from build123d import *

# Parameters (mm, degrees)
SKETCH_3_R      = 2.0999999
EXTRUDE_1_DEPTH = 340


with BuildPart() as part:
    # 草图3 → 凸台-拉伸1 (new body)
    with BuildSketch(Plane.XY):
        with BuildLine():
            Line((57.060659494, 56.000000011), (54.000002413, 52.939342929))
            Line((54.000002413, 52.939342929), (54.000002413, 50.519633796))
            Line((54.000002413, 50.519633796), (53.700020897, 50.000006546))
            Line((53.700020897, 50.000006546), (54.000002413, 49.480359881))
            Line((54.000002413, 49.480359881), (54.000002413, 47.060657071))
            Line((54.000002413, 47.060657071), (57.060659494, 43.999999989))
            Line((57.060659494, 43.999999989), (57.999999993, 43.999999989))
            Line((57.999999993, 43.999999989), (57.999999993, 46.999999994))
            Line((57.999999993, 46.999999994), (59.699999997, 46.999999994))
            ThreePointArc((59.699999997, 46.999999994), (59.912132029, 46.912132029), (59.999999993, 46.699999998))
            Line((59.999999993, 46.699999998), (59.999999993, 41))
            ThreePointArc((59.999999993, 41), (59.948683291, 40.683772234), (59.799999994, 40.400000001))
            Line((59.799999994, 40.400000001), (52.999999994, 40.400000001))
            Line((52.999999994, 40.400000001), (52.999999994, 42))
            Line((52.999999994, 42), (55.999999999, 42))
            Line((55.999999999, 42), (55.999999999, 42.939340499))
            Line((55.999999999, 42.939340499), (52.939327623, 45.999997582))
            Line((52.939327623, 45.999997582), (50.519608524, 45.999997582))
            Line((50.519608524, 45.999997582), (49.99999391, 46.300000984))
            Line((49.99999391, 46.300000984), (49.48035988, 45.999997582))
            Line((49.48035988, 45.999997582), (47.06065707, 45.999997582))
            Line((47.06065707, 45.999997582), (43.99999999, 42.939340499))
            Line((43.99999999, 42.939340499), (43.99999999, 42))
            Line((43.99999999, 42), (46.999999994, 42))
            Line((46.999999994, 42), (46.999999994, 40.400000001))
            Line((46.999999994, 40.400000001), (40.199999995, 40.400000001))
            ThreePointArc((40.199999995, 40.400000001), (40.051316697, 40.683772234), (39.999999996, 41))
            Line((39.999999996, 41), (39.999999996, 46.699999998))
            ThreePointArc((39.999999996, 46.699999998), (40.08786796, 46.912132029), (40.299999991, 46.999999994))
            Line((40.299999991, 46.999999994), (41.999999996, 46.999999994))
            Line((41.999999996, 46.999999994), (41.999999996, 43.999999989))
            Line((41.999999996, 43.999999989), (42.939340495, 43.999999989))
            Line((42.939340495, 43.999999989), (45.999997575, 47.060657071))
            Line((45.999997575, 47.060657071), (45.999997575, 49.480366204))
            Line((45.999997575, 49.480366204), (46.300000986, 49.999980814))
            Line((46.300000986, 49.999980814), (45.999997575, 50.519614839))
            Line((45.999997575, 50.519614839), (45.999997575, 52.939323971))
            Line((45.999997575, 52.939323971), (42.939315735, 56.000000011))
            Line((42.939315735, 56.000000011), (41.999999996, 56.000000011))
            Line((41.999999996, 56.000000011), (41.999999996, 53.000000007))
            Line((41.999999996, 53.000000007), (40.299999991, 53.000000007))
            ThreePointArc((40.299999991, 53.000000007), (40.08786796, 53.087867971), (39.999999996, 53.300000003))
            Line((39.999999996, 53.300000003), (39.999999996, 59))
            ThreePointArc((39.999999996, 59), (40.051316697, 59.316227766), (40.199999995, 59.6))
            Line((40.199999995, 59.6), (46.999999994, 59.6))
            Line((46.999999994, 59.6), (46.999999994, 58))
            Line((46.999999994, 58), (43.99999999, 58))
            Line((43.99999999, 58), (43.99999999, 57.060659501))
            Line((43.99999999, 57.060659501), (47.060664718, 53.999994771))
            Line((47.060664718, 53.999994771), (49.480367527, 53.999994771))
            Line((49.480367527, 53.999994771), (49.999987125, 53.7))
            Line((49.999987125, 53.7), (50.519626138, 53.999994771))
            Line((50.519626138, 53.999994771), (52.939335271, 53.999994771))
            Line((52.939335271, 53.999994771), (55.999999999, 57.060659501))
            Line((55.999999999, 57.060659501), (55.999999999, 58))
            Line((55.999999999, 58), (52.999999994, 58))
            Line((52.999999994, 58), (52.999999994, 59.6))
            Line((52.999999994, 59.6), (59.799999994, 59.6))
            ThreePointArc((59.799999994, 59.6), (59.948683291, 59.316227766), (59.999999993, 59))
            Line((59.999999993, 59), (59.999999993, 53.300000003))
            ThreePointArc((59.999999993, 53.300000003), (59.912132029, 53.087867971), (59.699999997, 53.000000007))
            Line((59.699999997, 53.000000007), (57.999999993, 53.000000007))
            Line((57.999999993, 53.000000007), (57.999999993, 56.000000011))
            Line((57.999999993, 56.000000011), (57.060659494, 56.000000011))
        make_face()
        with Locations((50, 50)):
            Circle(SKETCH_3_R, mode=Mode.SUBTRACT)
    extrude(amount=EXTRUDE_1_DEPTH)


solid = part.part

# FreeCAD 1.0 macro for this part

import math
import FreeCAD as App
import Part
import Sketcher
from FreeCAD import Vector

doc = App.newDocument("Part")
body = doc.addObject("PartDesign::Body", "Body")

# Sketch on XY plane
sketch1 = body.newObject("Sketcher::SketchObject", "Sketch")
sketch1.AttachmentSupport = (doc.getObject("XY_Plane"), [""])
sketch1.MapMode = "FlatFace"
sketch1.addGeometry(Part.LineSegment(Vector(54.000002, 52.939343, 0), Vector(57.060659, 56, 0)), False)
sketch1.addGeometry(Part.LineSegment(Vector(57.060659, 56, 0), Vector(58, 56, 0)), False)
sketch1.addGeometry(Part.LineSegment(Vector(58, 56, 0), Vector(58, 53, 0)), False)
sketch1.addGeometry(Part.LineSegment(Vector(58, 53, 0), Vector(59.7, 53, 0)), False)
sketch1.addGeometry(Part.ArcOfCircle(Part.Circle(Vector(59.7, 53.3, 0), Vector(0, 0, 1), 0.3), math.radians(-90), math.radians(0)), False)
sketch1.addGeometry(Part.LineSegment(Vector(60, 53.3, 0), Vector(60, 59, 0)), False)
sketch1.addGeometry(Part.ArcOfCircle(Part.Circle(Vector(59, 59, 0), Vector(0, 0, 1), 1), math.radians(0), math.radians(36.869897)), False)
sketch1.addGeometry(Part.LineSegment(Vector(59.8, 59.6, 0), Vector(53, 59.6, 0)), False)
sketch1.addGeometry(Part.LineSegment(Vector(53, 59.6, 0), Vector(53, 58, 0)), False)
sketch1.addGeometry(Part.LineSegment(Vector(53, 58, 0), Vector(56, 58, 0)), False)
sketch1.addGeometry(Part.LineSegment(Vector(56, 58, 0), Vector(56, 57.06066, 0)), False)
sketch1.addGeometry(Part.LineSegment(Vector(56, 57.06066, 0), Vector(52.939335, 53.999995, 0)), False)
sketch1.addGeometry(Part.LineSegment(Vector(52.939335, 53.999995, 0), Vector(50.519626, 53.999995, 0)), False)
sketch1.addGeometry(Part.LineSegment(Vector(50.519626, 53.999995, 0), Vector(49.999987, 53.7, 0)), False)
sketch1.addGeometry(Part.LineSegment(Vector(49.999987, 53.7, 0), Vector(49.480368, 53.999995, 0)), False)
sketch1.addGeometry(Part.LineSegment(Vector(49.480368, 53.999995, 0), Vector(47.060665, 53.999995, 0)), False)
sketch1.addGeometry(Part.LineSegment(Vector(47.060665, 53.999995, 0), Vector(44, 57.06066, 0)), False)
sketch1.addGeometry(Part.LineSegment(Vector(44, 57.06066, 0), Vector(44, 58, 0)), False)
sketch1.addGeometry(Part.LineSegment(Vector(44, 58, 0), Vector(47, 58, 0)), False)
sketch1.addGeometry(Part.LineSegment(Vector(47, 58, 0), Vector(47, 59.6, 0)), False)
sketch1.addGeometry(Part.LineSegment(Vector(47, 59.6, 0), Vector(40.2, 59.6, 0)), False)
sketch1.addGeometry(Part.ArcOfCircle(Part.Circle(Vector(41, 59, 0), Vector(0, 0, 1), 1), math.radians(143.130102), math.radians(180)), False)
sketch1.addGeometry(Part.LineSegment(Vector(40, 59, 0), Vector(40, 53.3, 0)), False)
sketch1.addGeometry(Part.ArcOfCircle(Part.Circle(Vector(40.3, 53.3, 0), Vector(0, 0, 1), 0.3), math.radians(180), math.radians(270)), False)
sketch1.addGeometry(Part.LineSegment(Vector(40.3, 53, 0), Vector(42, 53, 0)), False)
sketch1.addGeometry(Part.LineSegment(Vector(42, 53, 0), Vector(42, 56, 0)), False)
sketch1.addGeometry(Part.LineSegment(Vector(42, 56, 0), Vector(42.939316, 56, 0)), False)
sketch1.addGeometry(Part.LineSegment(Vector(42.939316, 56, 0), Vector(45.999998, 52.939324, 0)), False)
sketch1.addGeometry(Part.LineSegment(Vector(45.999998, 52.939324, 0), Vector(45.999998, 50.519615, 0)), False)
sketch1.addGeometry(Part.LineSegment(Vector(45.999998, 50.519615, 0), Vector(46.300001, 49.999981, 0)), False)
sketch1.addGeometry(Part.LineSegment(Vector(46.300001, 49.999981, 0), Vector(45.999998, 49.480366, 0)), False)
sketch1.addGeometry(Part.LineSegment(Vector(45.999998, 49.480366, 0), Vector(45.999998, 47.060657, 0)), False)
sketch1.addGeometry(Part.LineSegment(Vector(45.999998, 47.060657, 0), Vector(42.93934, 44, 0)), False)
sketch1.addGeometry(Part.LineSegment(Vector(42.93934, 44, 0), Vector(42, 44, 0)), False)
sketch1.addGeometry(Part.LineSegment(Vector(42, 44, 0), Vector(42, 47, 0)), False)
sketch1.addGeometry(Part.LineSegment(Vector(42, 47, 0), Vector(40.3, 47, 0)), False)
sketch1.addGeometry(Part.ArcOfCircle(Part.Circle(Vector(40.3, 46.7, 0), Vector(0, 0, 1), 0.3), math.radians(90), math.radians(180)), False)
sketch1.addGeometry(Part.LineSegment(Vector(40, 46.7, 0), Vector(40, 41, 0)), False)
sketch1.addGeometry(Part.ArcOfCircle(Part.Circle(Vector(41, 41, 0), Vector(0, 0, 1), 1), math.radians(180), math.radians(216.869898)), False)
sketch1.addGeometry(Part.LineSegment(Vector(40.2, 40.4, 0), Vector(47, 40.4, 0)), False)
sketch1.addGeometry(Part.LineSegment(Vector(47, 40.4, 0), Vector(47, 42, 0)), False)
sketch1.addGeometry(Part.LineSegment(Vector(47, 42, 0), Vector(44, 42, 0)), False)
sketch1.addGeometry(Part.LineSegment(Vector(44, 42, 0), Vector(44, 42.93934, 0)), False)
sketch1.addGeometry(Part.LineSegment(Vector(44, 42.93934, 0), Vector(47.060657, 45.999998, 0)), False)
sketch1.addGeometry(Part.LineSegment(Vector(47.060657, 45.999998, 0), Vector(49.48036, 45.999998, 0)), False)
sketch1.addGeometry(Part.LineSegment(Vector(49.48036, 45.999998, 0), Vector(49.999994, 46.300001, 0)), False)
sketch1.addGeometry(Part.LineSegment(Vector(49.999994, 46.300001, 0), Vector(50.519609, 45.999998, 0)), False)
sketch1.addGeometry(Part.LineSegment(Vector(50.519609, 45.999998, 0), Vector(52.939328, 45.999998, 0)), False)
sketch1.addGeometry(Part.LineSegment(Vector(52.939328, 45.999998, 0), Vector(56, 42.93934, 0)), False)
sketch1.addGeometry(Part.LineSegment(Vector(56, 42.93934, 0), Vector(56, 42, 0)), False)
sketch1.addGeometry(Part.LineSegment(Vector(56, 42, 0), Vector(53, 42, 0)), False)
sketch1.addGeometry(Part.LineSegment(Vector(53, 42, 0), Vector(53, 40.4, 0)), False)
sketch1.addGeometry(Part.LineSegment(Vector(53, 40.4, 0), Vector(59.8, 40.4, 0)), False)
sketch1.addGeometry(Part.ArcOfCircle(Part.Circle(Vector(59, 41, 0), Vector(0, 0, 1), 1), math.radians(-36.869898), math.radians(0)), False)
sketch1.addGeometry(Part.LineSegment(Vector(60, 41, 0), Vector(60, 46.7, 0)), False)
sketch1.addGeometry(Part.ArcOfCircle(Part.Circle(Vector(59.7, 46.7, 0), Vector(0, 0, 1), 0.3), math.radians(0), math.radians(90)), False)
sketch1.addGeometry(Part.LineSegment(Vector(59.7, 47, 0), Vector(58, 47, 0)), False)
sketch1.addGeometry(Part.LineSegment(Vector(58, 47, 0), Vector(58, 44, 0)), False)
sketch1.addGeometry(Part.LineSegment(Vector(58, 44, 0), Vector(57.060659, 44, 0)), False)
sketch1.addGeometry(Part.LineSegment(Vector(57.060659, 44, 0), Vector(54.000002, 47.060657, 0)), False)
sketch1.addGeometry(Part.LineSegment(Vector(54.000002, 47.060657, 0), Vector(54.000002, 49.48036, 0)), False)
sketch1.addGeometry(Part.LineSegment(Vector(54.000002, 49.48036, 0), Vector(53.700021, 50.000007, 0)), False)
sketch1.addGeometry(Part.LineSegment(Vector(53.700021, 50.000007, 0), Vector(54.000002, 50.519634, 0)), False)
sketch1.addGeometry(Part.LineSegment(Vector(54.000002, 50.519634, 0), Vector(54.000002, 52.939343, 0)), False)
sketch1.addGeometry(Part.Circle(Vector(50, 50, 0), Vector(0, 0, 1), 2.1), False)
sketch1.addConstraint(Sketcher.Constraint("Coincident", 0, 2, 1, 1))
sketch1.addConstraint(Sketcher.Constraint("Coincident", 1, 2, 2, 1))
sketch1.addConstraint(Sketcher.Constraint("Coincident", 2, 2, 3, 1))
sketch1.addConstraint(Sketcher.Constraint("Coincident", 3, 2, 4, 1))
sketch1.addConstraint(Sketcher.Constraint("Coincident", 4, 2, 5, 1))
sketch1.addConstraint(Sketcher.Constraint("Coincident", 5, 2, 6, 1))
sketch1.addConstraint(Sketcher.Constraint("Coincident", 6, 2, 7, 1))
sketch1.addConstraint(Sketcher.Constraint("Coincident", 7, 2, 8, 1))
sketch1.addConstraint(Sketcher.Constraint("Coincident", 8, 2, 9, 1))
sketch1.addConstraint(Sketcher.Constraint("Coincident", 9, 2, 10, 1))
sketch1.addConstraint(Sketcher.Constraint("Coincident", 10, 2, 11, 1))
sketch1.addConstraint(Sketcher.Constraint("Coincident", 11, 2, 12, 1))
sketch1.addConstraint(Sketcher.Constraint("Coincident", 12, 2, 13, 1))
sketch1.addConstraint(Sketcher.Constraint("Coincident", 13, 2, 14, 1))
sketch1.addConstraint(Sketcher.Constraint("Coincident", 14, 2, 15, 1))
sketch1.addConstraint(Sketcher.Constraint("Coincident", 15, 2, 16, 1))
sketch1.addConstraint(Sketcher.Constraint("Coincident", 16, 2, 17, 1))
sketch1.addConstraint(Sketcher.Constraint("Coincident", 17, 2, 18, 1))
sketch1.addConstraint(Sketcher.Constraint("Coincident", 18, 2, 19, 1))
sketch1.addConstraint(Sketcher.Constraint("Coincident", 19, 2, 20, 1))
sketch1.addConstraint(Sketcher.Constraint("Coincident", 20, 2, 21, 1))
sketch1.addConstraint(Sketcher.Constraint("Coincident", 21, 2, 22, 1))
sketch1.addConstraint(Sketcher.Constraint("Coincident", 22, 2, 23, 1))
sketch1.addConstraint(Sketcher.Constraint("Coincident", 23, 2, 24, 1))
sketch1.addConstraint(Sketcher.Constraint("Coincident", 24, 2, 25, 1))
sketch1.addConstraint(Sketcher.Constraint("Coincident", 25, 2, 26, 1))
sketch1.addConstraint(Sketcher.Constraint("Coincident", 26, 2, 27, 1))
sketch1.addConstraint(Sketcher.Constraint("Coincident", 27, 2, 28, 1))
sketch1.addConstraint(Sketcher.Constraint("Coincident", 28, 2, 29, 1))
sketch1.addConstraint(Sketcher.Constraint("Coincident", 29, 2, 30, 1))
sketch1.addConstraint(Sketcher.Constraint("Coincident", 30, 2, 31, 1))
sketch1.addConstraint(Sketcher.Constraint("Coincident", 31, 2, 32, 1))
sketch1.addConstraint(Sketcher.Constraint("Coincident", 32, 2, 33, 1))
sketch1.addConstraint(Sketcher.Constraint("Coincident", 33, 2, 34, 1))
sketch1.addConstraint(Sketcher.Constraint("Coincident", 34, 2, 35, 1))
sketch1.addConstraint(Sketcher.Constraint("Coincident", 35, 2, 36, 1))
sketch1.addConstraint(Sketcher.Constraint("Coincident", 36, 2, 37, 1))
sketch1.addConstraint(Sketcher.Constraint("Coincident", 37, 2, 38, 1))
sketch1.addConstraint(Sketcher.Constraint("Coincident", 38, 2, 39, 1))
sketch1.addConstraint(Sketcher.Constraint("Coincident", 39, 2, 40, 1))
sketch1.addConstraint(Sketcher.Constraint("Coincident", 40, 2, 41, 1))
sketch1.addConstraint(Sketcher.Constraint("Coincident", 41, 2, 42, 1))
sketch1.addConstraint(Sketcher.Constraint("Coincident", 42, 2, 43, 1))
sketch1.addConstraint(Sketcher.Constraint("Coincident", 43, 2, 44, 1))
sketch1.addConstraint(Sketcher.Constraint("Coincident", 44, 2, 45, 1))
sketch1.addConstraint(Sketcher.Constraint("Coincident", 45, 2, 46, 1))
sketch1.addConstraint(Sketcher.Constraint("Coincident", 46, 2, 47, 1))
sketch1.addConstraint(Sketcher.Constraint("Coincident", 47, 2, 48, 1))
sketch1.addConstraint(Sketcher.Constraint("Coincident", 48, 2, 49, 1))
sketch1.addConstraint(Sketcher.Constraint("Coincident", 49, 2, 50, 1))
sketch1.addConstraint(Sketcher.Constraint("Coincident", 50, 2, 51, 1))
sketch1.addConstraint(Sketcher.Constraint("Coincident", 51, 2, 52, 1))
sketch1.addConstraint(Sketcher.Constraint("Coincident", 52, 2, 53, 1))
sketch1.addConstraint(Sketcher.Constraint("Coincident", 53, 2, 54, 1))
sketch1.addConstraint(Sketcher.Constraint("Coincident", 54, 2, 55, 1))
sketch1.addConstraint(Sketcher.Constraint("Coincident", 55, 2, 56, 1))
sketch1.addConstraint(Sketcher.Constraint("Coincident", 56, 2, 57, 1))
sketch1.addConstraint(Sketcher.Constraint("Coincident", 57, 2, 58, 1))
sketch1.addConstraint(Sketcher.Constraint("Coincident", 58, 2, 59, 1))
sketch1.addConstraint(Sketcher.Constraint("Coincident", 59, 2, 60, 1))
sketch1.addConstraint(Sketcher.Constraint("Coincident", 60, 2, 61, 1))
sketch1.addConstraint(Sketcher.Constraint("Coincident", 61, 2, 62, 1))
sketch1.addConstraint(Sketcher.Constraint("Coincident", 62, 2, 63, 1))
sketch1.addConstraint(Sketcher.Constraint("Coincident", 63, 2, 0, 1))
sketch1.addConstraint(Sketcher.Constraint("Horizontal", 1))
sketch1.addConstraint(Sketcher.Constraint("Vertical", 2))
sketch1.addConstraint(Sketcher.Constraint("Horizontal", 3))
sketch1.addConstraint(Sketcher.Constraint("Vertical", 5))
sketch1.addConstraint(Sketcher.Constraint("Horizontal", 7))
sketch1.addConstraint(Sketcher.Constraint("Vertical", 8))
sketch1.addConstraint(Sketcher.Constraint("Horizontal", 9))
sketch1.addConstraint(Sketcher.Constraint("Vertical", 10))
sketch1.addConstraint(Sketcher.Constraint("Horizontal", 12))
sketch1.addConstraint(Sketcher.Constraint("Horizontal", 15))
sketch1.addConstraint(Sketcher.Constraint("Vertical", 17))
sketch1.addConstraint(Sketcher.Constraint("Horizontal", 18))
sketch1.addConstraint(Sketcher.Constraint("Vertical", 19))
sketch1.addConstraint(Sketcher.Constraint("Horizontal", 20))
sketch1.addConstraint(Sketcher.Constraint("Vertical", 22))
sketch1.addConstraint(Sketcher.Constraint("Horizontal", 24))
sketch1.addConstraint(Sketcher.Constraint("Vertical", 25))
sketch1.addConstraint(Sketcher.Constraint("Horizontal", 26))
sketch1.addConstraint(Sketcher.Constraint("Vertical", 28))
sketch1.addConstraint(Sketcher.Constraint("Vertical", 31))
sketch1.addConstraint(Sketcher.Constraint("Horizontal", 33))
sketch1.addConstraint(Sketcher.Constraint("Vertical", 34))
sketch1.addConstraint(Sketcher.Constraint("Horizontal", 35))
sketch1.addConstraint(Sketcher.Constraint("Vertical", 37))
sketch1.addConstraint(Sketcher.Constraint("Horizontal", 39))
sketch1.addConstraint(Sketcher.Constraint("Vertical", 40))
sketch1.addConstraint(Sketcher.Constraint("Horizontal", 41))
sketch1.addConstraint(Sketcher.Constraint("Vertical", 42))
sketch1.addConstraint(Sketcher.Constraint("Horizontal", 44))
sketch1.addConstraint(Sketcher.Constraint("Horizontal", 47))
sketch1.addConstraint(Sketcher.Constraint("Vertical", 49))
sketch1.addConstraint(Sketcher.Constraint("Horizontal", 50))
sketch1.addConstraint(Sketcher.Constraint("Vertical", 51))
sketch1.addConstraint(Sketcher.Constraint("Horizontal", 52))
sketch1.addConstraint(Sketcher.Constraint("Vertical", 54))
sketch1.addConstraint(Sketcher.Constraint("Horizontal", 56))
sketch1.addConstraint(Sketcher.Constraint("Vertical", 57))
sketch1.addConstraint(Sketcher.Constraint("Horizontal", 58))
sketch1.addConstraint(Sketcher.Constraint("Vertical", 60))
sketch1.addConstraint(Sketcher.Constraint("Vertical", 63))
sketch1.addConstraint(Sketcher.Constraint("Radius", 6, 1.0))
sketch1.addConstraint(Sketcher.Constraint("Radius", 21, 1.0))
sketch1.addConstraint(Sketcher.Constraint("Radius", 38, 1.0))
sketch1.addConstraint(Sketcher.Constraint("Radius", 53, 1.0))
sketch1.addConstraint(Sketcher.Constraint("Diameter", 64, 4.2))
sketch1.addConstraint(Sketcher.Constraint("Radius", 4, 0.3))
sketch1.addConstraint(Sketcher.Constraint("Radius", 23, 0.3))
sketch1.addConstraint(Sketcher.Constraint("Radius", 36, 0.3))
sketch1.addConstraint(Sketcher.Constraint("Radius", 55, 0.3))
sketch1.addConstraint(Sketcher.Constraint("DistanceX", 9, 1, 9, 2, 3.0))
sketch1.addConstraint(Sketcher.Constraint("DistanceX", 18, 1, 18, 2, 3.0))
sketch1.addConstraint(Sketcher.Constraint("DistanceX", 41, 2, 41, 1, 3.0))
sketch1.addConstraint(Sketcher.Constraint("DistanceX", 50, 2, 50, 1, 3.0))
sketch1.addConstraint(Sketcher.Constraint("DistanceY", 2, 2, 2, 1, 3.0))
sketch1.addConstraint(Sketcher.Constraint("DistanceY", 25, 1, 25, 2, 3.0))
sketch1.addConstraint(Sketcher.Constraint("DistanceY", 34, 1, 34, 2, 3.0))
sketch1.addConstraint(Sketcher.Constraint("DistanceY", 57, 2, 57, 1, 3.0))
sketch1.addConstraint(Sketcher.Constraint("DistanceX", 3, 1, 3, 2, 1.7))
sketch1.addConstraint(Sketcher.Constraint("DistanceX", 7, 2, 7, 1, 6.8))
sketch1.addConstraint(Sketcher.Constraint("DistanceX", 20, 2, 20, 1, 6.8))
sketch1.addConstraint(Sketcher.Constraint("DistanceX", 24, 1, 24, 2, 1.7))
sketch1.addConstraint(Sketcher.Constraint("DistanceX", 35, 2, 35, 1, 1.7))
sketch1.addConstraint(Sketcher.Constraint("DistanceX", 39, 1, 39, 2, 6.8))
sketch1.addConstraint(Sketcher.Constraint("DistanceX", 52, 1, 52, 2, 6.8))
sketch1.addConstraint(Sketcher.Constraint("DistanceX", 56, 2, 56, 1, 1.7))
sketch1.addConstraint(Sketcher.Constraint("DistanceY", 5, 1, 5, 2, 5.7))
sketch1.addConstraint(Sketcher.Constraint("DistanceY", 8, 2, 8, 1, 1.6))
sketch1.addConstraint(Sketcher.Constraint("DistanceY", 19, 1, 19, 2, 1.6))
sketch1.addConstraint(Sketcher.Constraint("DistanceY", 22, 2, 22, 1, 5.7))
sketch1.addConstraint(Sketcher.Constraint("DistanceY", 37, 2, 37, 1, 5.7))
sketch1.addConstraint(Sketcher.Constraint("DistanceY", 40, 1, 40, 2, 1.6))
sketch1.addConstraint(Sketcher.Constraint("DistanceY", 51, 2, 51, 1, 1.6))
sketch1.addConstraint(Sketcher.Constraint("DistanceY", 54, 1, 54, 2, 5.7))
sketch1.addConstraint(Sketcher.Constraint("DistanceX", -1, 1, 6, 3, 59.0))
sketch1.addConstraint(Sketcher.Constraint("DistanceY", -1, 1, 6, 3, 59.0))
sketch1.addConstraint(Sketcher.Constraint("DistanceX", -1, 1, 21, 3, 41.0))
sketch1.addConstraint(Sketcher.Constraint("DistanceY", -1, 1, 21, 3, 59.0))
sketch1.addConstraint(Sketcher.Constraint("DistanceX", -1, 1, 38, 3, 41.0))
sketch1.addConstraint(Sketcher.Constraint("DistanceY", -1, 1, 38, 3, 41.0))
sketch1.addConstraint(Sketcher.Constraint("DistanceX", -1, 1, 53, 3, 59.0))
sketch1.addConstraint(Sketcher.Constraint("DistanceY", -1, 1, 53, 3, 41.0))
sketch1.addConstraint(Sketcher.Constraint("DistanceX", -1, 1, 64, 3, 50.0))
sketch1.addConstraint(Sketcher.Constraint("DistanceY", -1, 1, 64, 3, 50.0))
sketch1.addConstraint(Sketcher.Constraint("DistanceY", -1, 1, 0, 2, 56.0))
sketch1.addConstraint(Sketcher.Constraint("DistanceX", -1, 1, 1, 2, 58.0))
sketch1.addConstraint(Sketcher.Constraint("DistanceY", -1, 1, 5, 2, 59.0))
sketch1.addConstraint(Sketcher.Constraint("DistanceX", -1, 1, 7, 2, 53.0))
sketch1.addConstraint(Sketcher.Constraint("DistanceX", -1, 1, 16, 2, 44.0))
sketch1.addConstraint(Sketcher.Constraint("DistanceY", -1, 1, 21, 2, 59.0))
sketch1.addConstraint(Sketcher.Constraint("DistanceY", -1, 1, 23, 2, 53.0))
sketch1.addConstraint(Sketcher.Constraint("DistanceX", -1, 1, 24, 2, 42.0))
sketch1.addConstraint(Sketcher.Constraint("DistanceY", -1, 1, 32, 2, 44.0))
sketch1.addConstraint(Sketcher.Constraint("DistanceX", -1, 1, 33, 2, 42.0))
sketch1.addConstraint(Sketcher.Constraint("DistanceY", -1, 1, 37, 2, 41.0))
sketch1.addConstraint(Sketcher.Constraint("DistanceX", -1, 1, 39, 2, 47.0))
sketch1.addConstraint(Sketcher.Constraint("DistanceX", -1, 1, 48, 2, 56.0))
sketch1.addConstraint(Sketcher.Constraint("DistanceY", -1, 1, 53, 2, 41.0))
sketch1.addConstraint(Sketcher.Constraint("DistanceY", -1, 1, 55, 2, 47.0))
sketch1.addConstraint(Sketcher.Constraint("DistanceX", -1, 1, 56, 2, 58.0))
sketch1.addConstraint(Sketcher.Constraint("Distance", 14, 0.600001))
sketch1.addConstraint(Sketcher.Constraint("Distance", 30, 0.600001))
sketch1.addConstraint(Sketcher.Constraint("Distance", 46, 0.600001))
sketch1.addConstraint(Sketcher.Constraint("Distance", 62, 0.600001))
sketch1.addConstraint(Sketcher.Constraint("DistanceY", -1, 1, 13, 2, 53.7))
sketch1.addConstraint(Sketcher.Constraint("DistanceX", -1, 1, 29, 2, 46.300001))
sketch1.addConstraint(Sketcher.Constraint("DistanceY", -1, 1, 45, 2, 46.300001))
sketch1.addConstraint(Sketcher.Constraint("DistanceX", 1, 1, 1, 2, 0.93934))
sketch1.addConstraint(Sketcher.Constraint("DistanceX", 12, 2, 12, 1, 2.419709))
sketch1.addConstraint(Sketcher.Constraint("DistanceX", 33, 2, 33, 1, 0.93934))
sketch1.addConstraint(Sketcher.Constraint("DistanceX", 47, 1, 47, 2, 2.419719))
sketch1.addConstraint(Sketcher.Constraint("DistanceX", 58, 2, 58, 1, 0.93934))
sketch1.addConstraint(Sketcher.Constraint("DistanceY", 10, 2, 10, 1, 0.93934))
sketch1.addConstraint(Sketcher.Constraint("DistanceY", 17, 1, 17, 2, 0.93934))
sketch1.addConstraint(Sketcher.Constraint("DistanceY", 28, 2, 28, 1, 2.419709))
sketch1.addConstraint(Sketcher.Constraint("DistanceY", 31, 2, 31, 1, 2.419709))
sketch1.addConstraint(Sketcher.Constraint("DistanceY", 42, 1, 42, 2, 0.93934))
sketch1.addConstraint(Sketcher.Constraint("DistanceY", 49, 2, 49, 1, 0.93934))
sketch1.addConstraint(Sketcher.Constraint("DistanceY", 63, 1, 63, 2, 2.419709))
sketch1.addConstraint(Sketcher.Constraint("DistanceX", 15, 2, 15, 1, 2.419703))
sketch1.addConstraint(Sketcher.Constraint("DistanceX", 26, 1, 26, 2, 0.939316))
sketch1.addConstraint(Sketcher.Constraint("DistanceX", 44, 1, 44, 2, 2.419703))
sketch1.addConstraint(Sketcher.Constraint("DistanceY", 60, 1, 60, 2, 2.419703))
sketch1.addConstraint(Sketcher.Constraint("DistanceY", -1, 1, 29, 2, 49.999981))
sketch1.addConstraint(Sketcher.Constraint("DistanceX", -1, 1, 44, 2, 49.48036))
sketch1.addConstraint(Sketcher.Constraint("DistanceX", -1, 1, 46, 2, 50.519609))
sketch1.addConstraint(Sketcher.Constraint("DistanceY", -1, 1, 60, 2, 49.48036))
sketch1.addConstraint(Sketcher.Constraint("DistanceX", -1, 1, 61, 2, 53.700021))
sketch1.addConstraint(Sketcher.Constraint("Distance", 0, 4.328423))
sketch1.addConstraint(Sketcher.Constraint("Distance", 11, 4.328434))
sketch1.addConstraint(Sketcher.Constraint("Distance", 13, 0.600018))
sketch1.addConstraint(Sketcher.Constraint("Distance", 16, 4.328434))
sketch1.addConstraint(Sketcher.Constraint("Distance", 27, 4.328454))
sketch1.addConstraint(Sketcher.Constraint("Distance", 29, 0.600018))
sketch1.addConstraint(Sketcher.Constraint("Distance", 32, 4.328423))
sketch1.addConstraint(Sketcher.Constraint("Distance", 43, 4.328423))
sketch1.addConstraint(Sketcher.Constraint("Distance", 45, 0.600018))
sketch1.addConstraint(Sketcher.Constraint("Distance", 59, 4.328423))
sketch1.addConstraint(Sketcher.Constraint("Distance", 61, 0.600018))
sketch1.addConstraint(Sketcher.Constraint("DistanceX", -1, 1, 11, 2, 52.939335))
pad1 = body.newObject("PartDesign::Pad", "Pad")
pad1.Profile = sketch1
pad1.Length = 340

doc.recompute()
